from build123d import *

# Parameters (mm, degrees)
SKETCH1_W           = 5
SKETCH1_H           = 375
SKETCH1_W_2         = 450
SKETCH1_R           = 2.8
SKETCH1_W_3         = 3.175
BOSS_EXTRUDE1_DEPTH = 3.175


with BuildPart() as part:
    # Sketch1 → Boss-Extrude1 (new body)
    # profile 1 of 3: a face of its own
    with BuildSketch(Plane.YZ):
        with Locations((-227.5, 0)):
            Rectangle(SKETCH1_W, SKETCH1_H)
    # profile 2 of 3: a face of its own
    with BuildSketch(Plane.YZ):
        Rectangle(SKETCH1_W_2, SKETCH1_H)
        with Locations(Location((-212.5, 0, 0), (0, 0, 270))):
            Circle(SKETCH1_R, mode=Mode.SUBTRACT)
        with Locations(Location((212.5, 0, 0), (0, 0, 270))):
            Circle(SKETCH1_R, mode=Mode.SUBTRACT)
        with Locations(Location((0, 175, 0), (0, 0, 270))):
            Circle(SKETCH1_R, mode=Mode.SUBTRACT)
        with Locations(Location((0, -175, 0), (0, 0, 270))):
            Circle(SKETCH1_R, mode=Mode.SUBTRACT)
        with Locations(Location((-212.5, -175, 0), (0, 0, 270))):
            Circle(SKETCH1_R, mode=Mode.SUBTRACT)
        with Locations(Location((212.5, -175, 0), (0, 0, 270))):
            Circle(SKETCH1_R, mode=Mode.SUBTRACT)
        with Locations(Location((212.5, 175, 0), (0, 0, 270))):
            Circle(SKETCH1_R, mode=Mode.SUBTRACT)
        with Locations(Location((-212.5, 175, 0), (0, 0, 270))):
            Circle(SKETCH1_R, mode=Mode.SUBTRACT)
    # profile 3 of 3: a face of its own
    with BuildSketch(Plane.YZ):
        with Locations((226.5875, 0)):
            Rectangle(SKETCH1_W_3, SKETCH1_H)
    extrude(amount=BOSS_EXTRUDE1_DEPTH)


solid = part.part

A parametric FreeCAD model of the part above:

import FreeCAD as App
import Part
import Sketcher

V = App.Vector

doc = App.newDocument("Part")
body = doc.addObject("PartDesign::Body", "Body")

# Sketch on YZ plane
sketch1 = body.newObject("Sketcher::SketchObject", "Sketch")
sketch1.AttachmentSupport = (doc.getObject("YZ_Plane"), [""])
sketch1.MapMode = "FlatFace"
sketch1.addGeometry([
    Part.LineSegment(V(-230, 187.5, 0), V(-230, -187.5, 0)),  # 0
    Part.LineSegment(V(-230, -187.5, 0), V(228.175, -187.5, 0)),  # 1
    Part.LineSegment(V(228.175, -187.5, 0), V(228.175, 187.5, 0)),  # 2
    Part.LineSegment(V(228.175, 187.5, 0), V(-230, 187.5, 0)),  # 3
    Part.Circle(V(212.5, 175, 0), V(0, 0, 1), 2.8),  # 4
    Part.Circle(V(-212.5, -175, 0), V(0, 0, 1), 2.8),  # 5
    Part.Circle(V(0, -175, 0), V(0, 0, 1), 2.8),  # 6
    Part.Circle(V(212.5, -175, 0), V(0, 0, 1), 2.8),  # 7
    Part.Circle(V(-212.5, 0, 0), V(0, 0, 1), 2.8),  # 8
    Part.Circle(V(-212.5, 175, 0), V(0, 0, 1), 2.8),  # 9
    Part.Circle(V(212.5, 0, 0), V(0, 0, 1), 2.8),  # 10
    Part.Circle(V(0, 175, 0), V(0, 0, 1), 2.8),  # 11
], False)
sketch1.addConstraint([
    Sketcher.Constraint("Coincident", 0, 2, 1, 1),
    Sketcher.Constraint("Coincident", 1, 2, 2, 1),
    Sketcher.Constraint("Coincident", 2, 2, 3, 1),
    Sketcher.Constraint("Coincident", 3, 2, 0, 1),
    Sketcher.Constraint("Vertical", 0),
    Sketcher.Constraint("Horizontal", 1),
    Sketcher.Constraint("Vertical", 2),
    Sketcher.Constraint("Horizontal", 3),
    Sketcher.Constraint("Equal", 4, 5),
    Sketcher.Constraint("Equal", 5, 6),
    Sketcher.Constraint("Equal", 6, 7),
    Sketcher.Constraint("Equal", 7, 8),
    Sketcher.Constraint("Equal", 8, 9),
    Sketcher.Constraint("Equal", 9, 10),
    Sketcher.Constraint("Equal", 10, 11),
    Sketcher.Constraint("Symmetric", 4, 3, 5, 3, -1, 1),
    Sketcher.Constraint("Symmetric", 7, 3, 9, 3, -1, 1),
    Sketcher.Constraint("Symmetric", 8, 3, 10, 3, -1, 1),
    Sketcher.Constraint("Symmetric", 6, 3, 11, 3, -1, 1),
    Sketcher.Constraint("Symmetric", 5, 3, 7, 3, -2),
    Sketcher.Constraint("PointOnObject", 6, 3, -2),
    Sketcher.Constraint("PointOnObject", 8, 3, -1),
    Sketcher.Constraint("Horizontal", 5, 3, 6, 3),
    Sketcher.Constraint("Vertical", 5, 3, 8, 3),
    Sketcher.Constraint("Diameter", 4, 5.6),
    Sketcher.Constraint("DistanceY", 0, 2, 0, 1, 375.0),
    Sketcher.Constraint("DistanceY", -1, 1, 4, 3, 175.0),
    Sketcher.Constraint("DistanceX", 0, 2, -1, 1, 230.0),
    Sketcher.Constraint("DistanceX", 5, 3, 4, 3, 425.0),
    Sketcher.Constraint("DistanceY", 0, 2, -1, 1, 187.5),
    Sketcher.Constraint("DistanceX", 1, 1, 1, 2, 458.175),
])
pad1 = body.newObject("PartDesign::Pad", "Pad")
pad1.Profile = sketch1
pad1.Length = 3.175

doc.recompute()
